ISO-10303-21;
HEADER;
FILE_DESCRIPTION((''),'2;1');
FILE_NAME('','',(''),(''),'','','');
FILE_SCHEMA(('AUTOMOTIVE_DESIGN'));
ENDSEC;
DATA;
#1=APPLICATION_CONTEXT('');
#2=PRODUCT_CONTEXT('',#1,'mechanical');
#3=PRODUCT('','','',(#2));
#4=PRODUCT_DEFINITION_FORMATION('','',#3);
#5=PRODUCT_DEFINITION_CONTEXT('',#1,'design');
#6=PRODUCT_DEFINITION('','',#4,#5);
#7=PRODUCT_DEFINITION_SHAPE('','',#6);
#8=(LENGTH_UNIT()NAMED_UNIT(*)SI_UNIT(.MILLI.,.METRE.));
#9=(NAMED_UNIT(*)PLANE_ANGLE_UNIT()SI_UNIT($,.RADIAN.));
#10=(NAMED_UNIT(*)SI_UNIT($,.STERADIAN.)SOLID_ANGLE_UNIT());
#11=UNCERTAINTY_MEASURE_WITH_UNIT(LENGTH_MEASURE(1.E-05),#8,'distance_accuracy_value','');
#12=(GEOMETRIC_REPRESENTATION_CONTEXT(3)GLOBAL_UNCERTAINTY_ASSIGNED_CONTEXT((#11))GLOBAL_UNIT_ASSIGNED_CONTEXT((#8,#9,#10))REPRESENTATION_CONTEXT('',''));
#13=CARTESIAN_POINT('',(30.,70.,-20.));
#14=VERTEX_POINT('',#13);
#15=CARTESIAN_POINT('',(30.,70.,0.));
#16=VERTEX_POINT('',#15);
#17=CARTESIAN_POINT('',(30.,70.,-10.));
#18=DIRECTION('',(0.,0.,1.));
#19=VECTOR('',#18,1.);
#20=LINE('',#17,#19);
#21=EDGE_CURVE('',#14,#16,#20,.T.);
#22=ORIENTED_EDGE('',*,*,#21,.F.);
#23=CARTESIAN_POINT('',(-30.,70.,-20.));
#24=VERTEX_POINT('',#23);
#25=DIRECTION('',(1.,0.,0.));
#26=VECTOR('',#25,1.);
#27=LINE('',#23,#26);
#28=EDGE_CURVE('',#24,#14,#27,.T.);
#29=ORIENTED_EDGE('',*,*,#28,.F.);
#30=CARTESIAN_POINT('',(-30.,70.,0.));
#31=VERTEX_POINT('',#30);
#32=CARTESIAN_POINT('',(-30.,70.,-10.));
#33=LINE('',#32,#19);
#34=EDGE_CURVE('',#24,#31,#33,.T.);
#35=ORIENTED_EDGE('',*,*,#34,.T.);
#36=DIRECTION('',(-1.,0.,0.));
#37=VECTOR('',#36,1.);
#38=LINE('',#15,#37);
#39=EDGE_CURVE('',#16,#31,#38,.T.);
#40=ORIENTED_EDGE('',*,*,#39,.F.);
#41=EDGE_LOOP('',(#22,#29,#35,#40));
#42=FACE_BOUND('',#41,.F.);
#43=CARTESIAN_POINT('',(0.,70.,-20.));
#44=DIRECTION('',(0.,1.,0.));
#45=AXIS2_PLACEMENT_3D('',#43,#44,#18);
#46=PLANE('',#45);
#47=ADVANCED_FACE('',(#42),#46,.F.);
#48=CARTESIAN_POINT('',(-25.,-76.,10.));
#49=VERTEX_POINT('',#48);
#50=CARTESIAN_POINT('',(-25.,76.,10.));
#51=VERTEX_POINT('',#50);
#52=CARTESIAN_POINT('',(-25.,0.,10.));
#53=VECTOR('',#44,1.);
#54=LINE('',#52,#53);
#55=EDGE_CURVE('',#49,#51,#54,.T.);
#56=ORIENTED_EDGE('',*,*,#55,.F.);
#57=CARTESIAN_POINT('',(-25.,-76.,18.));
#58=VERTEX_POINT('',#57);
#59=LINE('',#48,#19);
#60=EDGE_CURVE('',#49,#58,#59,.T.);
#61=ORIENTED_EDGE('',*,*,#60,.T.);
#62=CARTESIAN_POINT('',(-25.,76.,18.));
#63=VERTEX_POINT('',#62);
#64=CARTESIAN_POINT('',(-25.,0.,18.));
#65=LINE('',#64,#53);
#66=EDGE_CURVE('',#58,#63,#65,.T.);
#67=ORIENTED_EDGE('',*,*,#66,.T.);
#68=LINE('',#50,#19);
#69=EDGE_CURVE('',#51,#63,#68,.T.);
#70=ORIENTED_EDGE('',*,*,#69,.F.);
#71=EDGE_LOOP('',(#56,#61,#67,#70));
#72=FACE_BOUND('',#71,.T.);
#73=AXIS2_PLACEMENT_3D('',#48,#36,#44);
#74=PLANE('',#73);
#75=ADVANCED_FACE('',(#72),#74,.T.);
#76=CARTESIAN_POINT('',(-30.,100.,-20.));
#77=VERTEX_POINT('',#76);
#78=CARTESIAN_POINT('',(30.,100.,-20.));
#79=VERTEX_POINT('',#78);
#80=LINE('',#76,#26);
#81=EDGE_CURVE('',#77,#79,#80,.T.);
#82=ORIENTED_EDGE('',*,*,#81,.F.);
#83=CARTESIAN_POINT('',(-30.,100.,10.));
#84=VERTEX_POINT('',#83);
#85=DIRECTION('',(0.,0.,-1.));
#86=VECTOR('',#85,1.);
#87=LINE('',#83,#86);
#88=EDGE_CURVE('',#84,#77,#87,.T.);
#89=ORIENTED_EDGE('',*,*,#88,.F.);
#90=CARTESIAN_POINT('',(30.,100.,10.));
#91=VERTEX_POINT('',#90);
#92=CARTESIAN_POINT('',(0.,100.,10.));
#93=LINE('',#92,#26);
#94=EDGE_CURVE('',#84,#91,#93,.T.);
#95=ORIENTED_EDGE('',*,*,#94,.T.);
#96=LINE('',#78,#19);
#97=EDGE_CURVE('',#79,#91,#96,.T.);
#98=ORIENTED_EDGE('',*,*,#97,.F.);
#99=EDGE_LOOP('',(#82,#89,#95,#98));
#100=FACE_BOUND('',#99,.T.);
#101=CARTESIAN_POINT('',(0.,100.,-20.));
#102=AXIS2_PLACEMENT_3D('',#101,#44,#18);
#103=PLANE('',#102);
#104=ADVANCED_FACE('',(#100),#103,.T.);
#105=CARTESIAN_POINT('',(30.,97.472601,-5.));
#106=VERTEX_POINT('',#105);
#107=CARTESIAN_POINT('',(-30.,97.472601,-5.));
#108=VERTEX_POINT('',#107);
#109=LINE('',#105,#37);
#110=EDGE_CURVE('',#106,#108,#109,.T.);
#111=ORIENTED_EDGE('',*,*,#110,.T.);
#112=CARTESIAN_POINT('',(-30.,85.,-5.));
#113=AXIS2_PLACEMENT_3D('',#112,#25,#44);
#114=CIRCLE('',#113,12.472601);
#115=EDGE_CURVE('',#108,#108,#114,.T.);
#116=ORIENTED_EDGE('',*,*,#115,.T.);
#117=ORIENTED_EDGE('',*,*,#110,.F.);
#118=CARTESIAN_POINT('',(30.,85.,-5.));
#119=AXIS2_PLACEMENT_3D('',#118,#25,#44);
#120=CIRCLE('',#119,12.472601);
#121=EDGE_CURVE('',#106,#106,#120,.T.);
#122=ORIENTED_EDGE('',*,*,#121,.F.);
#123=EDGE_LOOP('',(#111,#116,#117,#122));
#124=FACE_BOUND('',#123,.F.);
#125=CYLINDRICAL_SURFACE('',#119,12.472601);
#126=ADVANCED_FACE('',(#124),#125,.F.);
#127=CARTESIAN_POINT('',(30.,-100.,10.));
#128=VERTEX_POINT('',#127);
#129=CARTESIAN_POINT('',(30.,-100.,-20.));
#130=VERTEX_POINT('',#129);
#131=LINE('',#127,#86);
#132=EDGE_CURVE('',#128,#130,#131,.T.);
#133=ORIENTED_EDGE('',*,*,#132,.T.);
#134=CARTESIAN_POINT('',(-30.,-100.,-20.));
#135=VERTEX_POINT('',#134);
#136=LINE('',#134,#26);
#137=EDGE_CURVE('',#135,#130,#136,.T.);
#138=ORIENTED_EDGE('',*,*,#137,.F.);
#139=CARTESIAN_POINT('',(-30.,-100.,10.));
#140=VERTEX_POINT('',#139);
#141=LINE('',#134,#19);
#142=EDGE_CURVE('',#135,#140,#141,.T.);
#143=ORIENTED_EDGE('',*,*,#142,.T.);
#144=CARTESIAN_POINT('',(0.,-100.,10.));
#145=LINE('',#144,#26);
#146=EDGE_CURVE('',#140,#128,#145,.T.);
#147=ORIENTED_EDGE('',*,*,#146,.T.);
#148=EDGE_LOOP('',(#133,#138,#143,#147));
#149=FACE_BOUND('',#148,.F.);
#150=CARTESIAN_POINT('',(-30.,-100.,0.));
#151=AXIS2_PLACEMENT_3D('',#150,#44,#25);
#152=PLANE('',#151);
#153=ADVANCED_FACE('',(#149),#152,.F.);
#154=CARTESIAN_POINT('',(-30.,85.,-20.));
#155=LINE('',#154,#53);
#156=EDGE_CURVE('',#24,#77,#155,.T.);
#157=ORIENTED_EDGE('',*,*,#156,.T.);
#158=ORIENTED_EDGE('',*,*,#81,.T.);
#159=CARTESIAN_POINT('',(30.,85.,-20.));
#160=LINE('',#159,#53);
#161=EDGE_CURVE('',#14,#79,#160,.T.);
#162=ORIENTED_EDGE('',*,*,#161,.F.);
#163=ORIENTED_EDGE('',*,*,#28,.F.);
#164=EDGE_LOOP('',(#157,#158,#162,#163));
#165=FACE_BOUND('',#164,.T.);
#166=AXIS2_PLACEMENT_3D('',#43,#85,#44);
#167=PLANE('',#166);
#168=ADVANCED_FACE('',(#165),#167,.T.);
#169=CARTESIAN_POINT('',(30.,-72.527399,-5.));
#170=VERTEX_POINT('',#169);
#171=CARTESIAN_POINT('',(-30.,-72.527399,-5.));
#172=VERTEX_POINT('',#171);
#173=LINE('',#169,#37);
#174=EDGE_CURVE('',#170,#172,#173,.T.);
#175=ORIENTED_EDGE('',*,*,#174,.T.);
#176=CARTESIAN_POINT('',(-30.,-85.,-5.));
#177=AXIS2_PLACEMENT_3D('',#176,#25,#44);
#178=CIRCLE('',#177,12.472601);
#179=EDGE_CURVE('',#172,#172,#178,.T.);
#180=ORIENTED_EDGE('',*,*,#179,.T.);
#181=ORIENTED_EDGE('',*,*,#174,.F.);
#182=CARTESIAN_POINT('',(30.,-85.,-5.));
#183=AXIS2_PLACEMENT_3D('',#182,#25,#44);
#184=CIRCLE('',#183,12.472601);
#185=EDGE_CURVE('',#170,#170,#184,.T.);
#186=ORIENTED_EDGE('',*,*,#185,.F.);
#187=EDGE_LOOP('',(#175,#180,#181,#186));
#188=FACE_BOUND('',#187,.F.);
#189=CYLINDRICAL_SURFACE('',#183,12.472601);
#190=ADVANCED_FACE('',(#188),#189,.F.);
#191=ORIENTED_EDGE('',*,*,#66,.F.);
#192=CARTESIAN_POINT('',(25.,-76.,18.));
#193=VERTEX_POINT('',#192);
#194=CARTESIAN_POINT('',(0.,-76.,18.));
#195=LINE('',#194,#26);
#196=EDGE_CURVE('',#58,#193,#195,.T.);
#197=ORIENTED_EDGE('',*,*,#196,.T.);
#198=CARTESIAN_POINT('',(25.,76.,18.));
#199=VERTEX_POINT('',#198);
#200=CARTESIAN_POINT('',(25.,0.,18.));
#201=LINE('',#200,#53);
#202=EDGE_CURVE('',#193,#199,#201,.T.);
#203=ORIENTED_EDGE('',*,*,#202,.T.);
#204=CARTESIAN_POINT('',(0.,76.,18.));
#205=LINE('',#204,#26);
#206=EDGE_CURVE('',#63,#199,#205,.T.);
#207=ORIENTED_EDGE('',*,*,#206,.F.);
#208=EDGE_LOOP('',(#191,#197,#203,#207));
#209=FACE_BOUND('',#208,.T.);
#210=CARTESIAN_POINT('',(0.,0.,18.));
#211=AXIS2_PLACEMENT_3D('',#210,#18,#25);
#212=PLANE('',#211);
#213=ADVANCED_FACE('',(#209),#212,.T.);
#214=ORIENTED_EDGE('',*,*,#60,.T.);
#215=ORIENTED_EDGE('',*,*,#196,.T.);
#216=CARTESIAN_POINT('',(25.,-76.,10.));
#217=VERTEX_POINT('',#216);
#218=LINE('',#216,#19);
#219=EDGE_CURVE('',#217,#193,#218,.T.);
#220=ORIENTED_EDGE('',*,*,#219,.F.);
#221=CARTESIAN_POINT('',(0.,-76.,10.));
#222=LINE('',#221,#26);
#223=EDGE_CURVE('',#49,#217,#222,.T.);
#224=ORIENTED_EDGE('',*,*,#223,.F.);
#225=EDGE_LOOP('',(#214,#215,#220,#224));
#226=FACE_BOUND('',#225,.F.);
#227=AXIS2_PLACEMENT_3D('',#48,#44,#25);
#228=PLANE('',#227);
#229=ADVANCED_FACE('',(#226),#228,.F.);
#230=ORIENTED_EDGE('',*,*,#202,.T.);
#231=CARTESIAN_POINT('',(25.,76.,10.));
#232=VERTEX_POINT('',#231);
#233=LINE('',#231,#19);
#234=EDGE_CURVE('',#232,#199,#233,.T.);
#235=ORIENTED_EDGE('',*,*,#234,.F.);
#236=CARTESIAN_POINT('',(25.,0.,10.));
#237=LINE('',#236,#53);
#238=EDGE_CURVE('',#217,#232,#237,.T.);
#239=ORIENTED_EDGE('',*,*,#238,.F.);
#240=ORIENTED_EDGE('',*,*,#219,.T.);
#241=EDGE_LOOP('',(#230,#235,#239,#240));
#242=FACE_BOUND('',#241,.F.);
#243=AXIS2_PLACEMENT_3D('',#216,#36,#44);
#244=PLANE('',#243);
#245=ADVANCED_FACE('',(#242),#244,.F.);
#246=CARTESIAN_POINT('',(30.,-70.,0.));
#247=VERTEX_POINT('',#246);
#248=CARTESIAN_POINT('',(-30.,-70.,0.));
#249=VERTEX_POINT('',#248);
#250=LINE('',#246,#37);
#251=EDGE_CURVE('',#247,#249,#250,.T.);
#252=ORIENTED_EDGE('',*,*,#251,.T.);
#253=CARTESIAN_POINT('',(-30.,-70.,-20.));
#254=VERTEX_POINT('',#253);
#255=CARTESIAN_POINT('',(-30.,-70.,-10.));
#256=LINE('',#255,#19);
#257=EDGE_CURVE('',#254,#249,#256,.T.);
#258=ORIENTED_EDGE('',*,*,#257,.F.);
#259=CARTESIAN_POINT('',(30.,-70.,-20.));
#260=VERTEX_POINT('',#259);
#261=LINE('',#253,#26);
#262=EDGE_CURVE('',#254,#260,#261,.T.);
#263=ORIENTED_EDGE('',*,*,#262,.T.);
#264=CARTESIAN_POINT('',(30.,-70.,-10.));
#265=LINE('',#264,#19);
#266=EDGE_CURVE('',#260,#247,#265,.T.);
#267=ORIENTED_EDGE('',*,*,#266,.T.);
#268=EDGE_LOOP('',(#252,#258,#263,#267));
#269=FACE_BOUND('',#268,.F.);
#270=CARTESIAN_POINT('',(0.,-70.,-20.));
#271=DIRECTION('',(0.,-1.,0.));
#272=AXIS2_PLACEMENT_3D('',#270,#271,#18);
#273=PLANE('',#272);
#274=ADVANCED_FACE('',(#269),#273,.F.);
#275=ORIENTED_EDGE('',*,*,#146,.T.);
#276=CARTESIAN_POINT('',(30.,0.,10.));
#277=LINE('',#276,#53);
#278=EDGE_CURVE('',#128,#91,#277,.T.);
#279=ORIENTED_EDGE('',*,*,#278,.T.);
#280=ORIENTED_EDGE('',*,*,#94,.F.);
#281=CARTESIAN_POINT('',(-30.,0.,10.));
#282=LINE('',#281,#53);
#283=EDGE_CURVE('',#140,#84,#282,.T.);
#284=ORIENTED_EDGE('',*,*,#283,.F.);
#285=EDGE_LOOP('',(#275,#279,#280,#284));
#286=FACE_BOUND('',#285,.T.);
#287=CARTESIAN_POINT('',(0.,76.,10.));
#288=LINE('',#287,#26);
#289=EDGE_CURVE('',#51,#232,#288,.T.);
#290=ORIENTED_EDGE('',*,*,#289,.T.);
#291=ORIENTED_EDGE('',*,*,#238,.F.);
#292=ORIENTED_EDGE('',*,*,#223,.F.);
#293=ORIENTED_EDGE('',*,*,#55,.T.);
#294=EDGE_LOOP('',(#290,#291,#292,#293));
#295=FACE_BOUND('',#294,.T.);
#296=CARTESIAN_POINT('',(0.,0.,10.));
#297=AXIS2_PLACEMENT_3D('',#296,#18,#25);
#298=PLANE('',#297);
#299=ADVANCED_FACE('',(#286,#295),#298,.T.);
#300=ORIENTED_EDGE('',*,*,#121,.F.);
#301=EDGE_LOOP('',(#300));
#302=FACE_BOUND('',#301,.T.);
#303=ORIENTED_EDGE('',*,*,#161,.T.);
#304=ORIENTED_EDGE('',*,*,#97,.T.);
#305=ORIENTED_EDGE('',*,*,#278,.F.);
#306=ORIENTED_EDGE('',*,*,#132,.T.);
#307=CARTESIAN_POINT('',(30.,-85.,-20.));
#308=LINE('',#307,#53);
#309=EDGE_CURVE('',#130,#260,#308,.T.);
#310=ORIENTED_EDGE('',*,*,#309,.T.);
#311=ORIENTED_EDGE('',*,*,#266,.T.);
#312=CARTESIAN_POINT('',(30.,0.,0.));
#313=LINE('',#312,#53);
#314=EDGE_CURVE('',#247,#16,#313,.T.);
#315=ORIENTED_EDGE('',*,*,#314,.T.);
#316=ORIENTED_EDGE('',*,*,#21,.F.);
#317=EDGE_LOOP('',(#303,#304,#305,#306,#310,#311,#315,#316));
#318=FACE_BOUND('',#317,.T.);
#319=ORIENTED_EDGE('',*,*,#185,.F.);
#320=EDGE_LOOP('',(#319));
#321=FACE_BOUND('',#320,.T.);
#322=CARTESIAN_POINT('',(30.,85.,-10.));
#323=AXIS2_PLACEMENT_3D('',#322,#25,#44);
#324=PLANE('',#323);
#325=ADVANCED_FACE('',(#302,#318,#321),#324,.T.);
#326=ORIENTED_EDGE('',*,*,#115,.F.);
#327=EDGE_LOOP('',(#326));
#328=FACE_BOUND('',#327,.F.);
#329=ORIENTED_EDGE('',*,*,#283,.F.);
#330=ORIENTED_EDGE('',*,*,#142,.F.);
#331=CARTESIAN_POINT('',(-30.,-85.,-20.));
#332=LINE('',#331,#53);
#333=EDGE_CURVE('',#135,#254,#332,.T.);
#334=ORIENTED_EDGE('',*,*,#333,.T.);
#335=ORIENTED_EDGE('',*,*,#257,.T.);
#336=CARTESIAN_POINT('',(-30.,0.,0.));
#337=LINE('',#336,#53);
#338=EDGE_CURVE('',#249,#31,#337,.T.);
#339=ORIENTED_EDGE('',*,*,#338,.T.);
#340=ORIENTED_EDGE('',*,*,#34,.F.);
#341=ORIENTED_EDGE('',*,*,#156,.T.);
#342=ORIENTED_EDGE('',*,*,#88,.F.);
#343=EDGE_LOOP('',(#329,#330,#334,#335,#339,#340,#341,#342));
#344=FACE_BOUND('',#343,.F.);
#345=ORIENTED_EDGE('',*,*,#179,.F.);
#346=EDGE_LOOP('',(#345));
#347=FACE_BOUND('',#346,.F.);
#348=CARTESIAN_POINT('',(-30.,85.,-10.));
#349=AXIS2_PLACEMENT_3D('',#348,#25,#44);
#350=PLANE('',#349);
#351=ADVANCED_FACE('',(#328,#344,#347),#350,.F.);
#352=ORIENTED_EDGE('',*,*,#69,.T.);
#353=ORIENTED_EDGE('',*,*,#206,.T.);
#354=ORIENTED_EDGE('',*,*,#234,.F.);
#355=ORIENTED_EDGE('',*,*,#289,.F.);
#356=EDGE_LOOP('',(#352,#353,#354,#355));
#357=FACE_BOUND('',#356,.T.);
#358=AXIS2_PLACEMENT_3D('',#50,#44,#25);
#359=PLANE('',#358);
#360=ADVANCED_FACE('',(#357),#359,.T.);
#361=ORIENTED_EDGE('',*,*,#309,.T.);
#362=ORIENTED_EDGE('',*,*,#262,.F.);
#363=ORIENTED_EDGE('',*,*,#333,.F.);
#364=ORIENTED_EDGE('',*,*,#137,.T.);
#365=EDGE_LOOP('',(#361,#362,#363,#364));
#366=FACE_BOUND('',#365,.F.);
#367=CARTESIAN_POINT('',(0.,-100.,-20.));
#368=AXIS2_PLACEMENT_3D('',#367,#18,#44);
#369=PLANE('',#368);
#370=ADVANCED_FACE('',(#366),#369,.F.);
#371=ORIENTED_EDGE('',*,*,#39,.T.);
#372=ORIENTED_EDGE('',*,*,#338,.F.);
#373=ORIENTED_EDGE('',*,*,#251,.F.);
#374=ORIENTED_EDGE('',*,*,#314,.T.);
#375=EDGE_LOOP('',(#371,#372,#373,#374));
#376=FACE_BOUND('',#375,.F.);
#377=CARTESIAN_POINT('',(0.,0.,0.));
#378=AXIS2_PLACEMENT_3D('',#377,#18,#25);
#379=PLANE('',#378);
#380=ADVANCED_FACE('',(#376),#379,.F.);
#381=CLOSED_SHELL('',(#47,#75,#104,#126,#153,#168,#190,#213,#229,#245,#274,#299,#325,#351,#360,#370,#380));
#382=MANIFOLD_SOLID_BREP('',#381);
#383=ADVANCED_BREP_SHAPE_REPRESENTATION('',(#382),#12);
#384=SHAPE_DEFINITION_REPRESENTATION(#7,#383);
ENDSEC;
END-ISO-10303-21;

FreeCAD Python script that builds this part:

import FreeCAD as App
import Part
import Sketcher
Q = App.Units.Quantity

doc = App.newDocument("Part")
body = doc.addObject("PartDesign::Body", "Body")

sketch1 = doc.addObject("Sketcher::SketchObject", "Sketch")
body.addObject(sketch1)
sketch1.AttachmentSupport = (doc.XY_Plane, [""])
sketch1.MapMode = "FlatFace"
sketch1.addGeometry(Part.LineSegment(App.Vector(-30, 100, 0), App.Vector(-30, -100, 0)), False)
sketch1.addGeometry(Part.LineSegment(App.Vector(-30, -100, 0), App.Vector(30, -100, 0)), False)
sketch1.addGeometry(Part.LineSegment(App.Vector(30, -100, 0), App.Vector(30, 100, 0)), False)
sketch1.addGeometry(Part.LineSegment(App.Vector(30, 100, 0), App.Vector(-30, 100, 0)), False)
sketch1.addConstraint(Sketcher.Constraint("Coincident", 0, 2, 1, 1))
sketch1.addConstraint(Sketcher.Constraint("Coincident", 1, 2, 2, 1))
sketch1.addConstraint(Sketcher.Constraint("Coincident", 2, 2, 3, 1))
sketch1.addConstraint(Sketcher.Constraint("Coincident", 3, 2, 0, 1))
sketch1.addConstraint(Sketcher.Constraint("Vertical", 0))
sketch1.addConstraint(Sketcher.Constraint("Horizontal", 1))
sketch1.addConstraint(Sketcher.Constraint("Vertical", 2))
sketch1.addConstraint(Sketcher.Constraint("Horizontal", 3))
sketch1.addConstraint(Sketcher.Constraint("Symmetric", 0, 2, 2, 2, -1, 1))
sketch1.addConstraint(Sketcher.Constraint("DistanceX", 1, 1, 1, 2, Q("60 mm")))
sketch1.addConstraint(Sketcher.Constraint("DistanceY", 0, 2, 0, 1, Q("200 mm")))
pad1 = doc.addObject("PartDesign::Pad", "Pad")
body.addObject(pad1)
pad1.Profile = sketch1
pad1.Length = 10

sketch2 = doc.addObject("Sketcher::SketchObject", "Sketch001")
body.addObject(sketch2)
sketch2.AttachmentSupport = (doc.YZ_Plane, [""])
sketch2.MapMode = "FlatFace"
sketch2.addGeometry(Part.LineSegment(App.Vector(-100, 0, 0), App.Vector(-100, -20, 0)), False)
sketch2.addGeometry(Part.LineSegment(App.Vector(-100, -20, 0), App.Vector(-70, -20, 0)), False)
sketch2.addGeometry(Part.LineSegment(App.Vector(-70, -20, 0), App.Vector(-70, 0, 0)), False)
sketch2.addGeometry(Part.LineSegment(App.Vector(-70, 0, 0), App.Vector(-100, 0, 0)), False)
sketch2.addGeometry(Part.LineSegment(App.Vector(70, 0, 0), App.Vector(70, -20, 0)), False)
sketch2.addGeometry(Part.LineSegment(App.Vector(70, -20, 0), App.Vector(100, -20, 0)), False)
sketch2.addGeometry(Part.LineSegment(App.Vector(100, -20, 0), App.Vector(100, 0, 0)), False)
sketch2.addGeometry(Part.LineSegment(App.Vector(100, 0, 0), App.Vector(70, 0, 0)), False)
sketch2.addConstraint(Sketcher.Constraint("Coincident", 0, 2, 1, 1))
sketch2.addConstraint(Sketcher.Constraint("Coincident", 1, 2, 2, 1))
sketch2.addConstraint(Sketcher.Constraint("Coincident", 2, 2, 3, 1))
sketch2.addConstraint(Sketcher.Constraint("Coincident", 3, 2, 0, 1))
sketch2.addConstraint(Sketcher.Constraint("Coincident", 4, 2, 5, 1))
sketch2.addConstraint(Sketcher.Constraint("Coincident", 5, 2, 6, 1))
sketch2.addConstraint(Sketcher.Constraint("Coincident", 6, 2, 7, 1))
sketch2.addConstraint(Sketcher.Constraint("Coincident", 7, 2, 4, 1))
sketch2.addConstraint(Sketcher.Constraint("Vertical", 0))
sketch2.addConstraint(Sketcher.Constraint("Horizontal", 1))
sketch2.addConstraint(Sketcher.Constraint("Vertical", 2))
sketch2.addConstraint(Sketcher.Constraint("Horizontal", 3))
sketch2.addConstraint(Sketcher.Constraint("Vertical", 4))
sketch2.addConstraint(Sketcher.Constraint("Horizontal", 5))
sketch2.addConstraint(Sketcher.Constraint("Vertical", 6))
sketch2.addConstraint(Sketcher.Constraint("Horizontal", 7))
sketch2.addConstraint(Sketcher.Constraint("Symmetric", 3, 2, 6, 2, -1, 1))
sketch2.addConstraint(Sketcher.Constraint("Symmetric", 1, 2, 4, 2, -2))
sketch2.addConstraint(Sketcher.Constraint("PointOnObject", 2, 2, -1))
sketch2.addConstraint(Sketcher.Constraint("DistanceX", 1, 1, 1, 2, Q("30 mm")))
sketch2.addConstraint(Sketcher.Constraint("DistanceY", 0, 2, 0, 1, Q("20 mm")))
sketch2.addConstraint(Sketcher.Constraint("DistanceX", 0, 2, -1, 1, Q("100 mm")))
pad2 = doc.addObject("PartDesign::Pad", "Pad001")
body.addObject(pad2)
pad2.Profile = sketch2
pad2.Length = 60
pad2.Midplane = True

sketch3 = doc.addObject("Sketcher::SketchObject", "Sketch002")
body.addObject(sketch3)
sketch3.AttachmentSupport = (doc.XY_Plane, [""])
sketch3.MapMode = "FlatFace"
sketch3.AttachmentOffset = App.Placement(App.Vector(0, 0, 10), App.Rotation())
sketch3.addGeometry(Part.LineSegment(App.Vector(-25, 76, 0), App.Vector(-25, -76, 0)), False)
sketch3.addGeometry(Part.LineSegment(App.Vector(-25, -76, 0), App.Vector(25, -76, 0)), False)
sketch3.addGeometry(Part.LineSegment(App.Vector(25, -76, 0), App.Vector(25, 76, 0)), False)
sketch3.addGeometry(Part.LineSegment(App.Vector(25, 76, 0), App.Vector(-25, 76, 0)), False)
sketch3.addConstraint(Sketcher.Constraint("Coincident", 0, 2, 1, 1))
sketch3.addConstraint(Sketcher.Constraint("Coincident", 1, 2, 2, 1))
sketch3.addConstraint(Sketcher.Constraint("Coincident", 2, 2, 3, 1))
sketch3.addConstraint(Sketcher.Constraint("Coincident", 3, 2, 0, 1))
sketch3.addConstraint(Sketcher.Constraint("Vertical", 0))
sketch3.addConstraint(Sketcher.Constraint("Horizontal", 1))
sketch3.addConstraint(Sketcher.Constraint("Vertical", 2))
sketch3.addConstraint(Sketcher.Constraint("Horizontal", 3))
sketch3.addConstraint(Sketcher.Constraint("Symmetric", 0, 2, 2, 2, -1, 1))
sketch3.addConstraint(Sketcher.Constraint("DistanceX", 1, 1, 1, 2, Q("50 mm")))
sketch3.addConstraint(Sketcher.Constraint("DistanceY", 0, 2, 0, 1, Q("152 mm")))
pad3 = doc.addObject("PartDesign::Pad", "Pad002")
body.addObject(pad3)
pad3.Profile = sketch3
pad3.Length = 8

sketch4 = doc.addObject("Sketcher::SketchObject", "Sketch003")
body.addObject(sketch4)
sketch4.AttachmentSupport = (doc.YZ_Plane, [""])
sketch4.MapMode = "FlatFace"
sketch4.AttachmentOffset = App.Placement(App.Vector(0, 0, 30), App.Rotation())
sketch4.addGeometry(Part.Circle(App.Vector(-85, -5, 0), App.Vector(0, 0, 1), 12), False)
sketch4.addGeometry(Part.Circle(App.Vector(85, -5, 0), App.Vector(0, 0, 1), 12), False)
sketch4.addConstraint(Sketcher.Constraint("Equal", 0, 1))
sketch4.addConstraint(Sketcher.Constraint("Symmetric", 0, 3, 1, 3, -2))
sketch4.addConstraint(Sketcher.Constraint("DistanceX", 0, 3, -1, 1, Q("85 mm")))
sketch4.addConstraint(Sketcher.Constraint("DistanceY", 0, 3, -1, 1, Q("5 mm")))
sketch4.addConstraint(Sketcher.Constraint("Diameter", 0, Q("24.945202 mm")))
pocket1 = doc.addObject("PartDesign::Pocket", "Pocket")
body.addObject(pocket1)
pocket1.Profile = sketch4
pocket1.Type = "ThroughAll"

doc.recompute()
